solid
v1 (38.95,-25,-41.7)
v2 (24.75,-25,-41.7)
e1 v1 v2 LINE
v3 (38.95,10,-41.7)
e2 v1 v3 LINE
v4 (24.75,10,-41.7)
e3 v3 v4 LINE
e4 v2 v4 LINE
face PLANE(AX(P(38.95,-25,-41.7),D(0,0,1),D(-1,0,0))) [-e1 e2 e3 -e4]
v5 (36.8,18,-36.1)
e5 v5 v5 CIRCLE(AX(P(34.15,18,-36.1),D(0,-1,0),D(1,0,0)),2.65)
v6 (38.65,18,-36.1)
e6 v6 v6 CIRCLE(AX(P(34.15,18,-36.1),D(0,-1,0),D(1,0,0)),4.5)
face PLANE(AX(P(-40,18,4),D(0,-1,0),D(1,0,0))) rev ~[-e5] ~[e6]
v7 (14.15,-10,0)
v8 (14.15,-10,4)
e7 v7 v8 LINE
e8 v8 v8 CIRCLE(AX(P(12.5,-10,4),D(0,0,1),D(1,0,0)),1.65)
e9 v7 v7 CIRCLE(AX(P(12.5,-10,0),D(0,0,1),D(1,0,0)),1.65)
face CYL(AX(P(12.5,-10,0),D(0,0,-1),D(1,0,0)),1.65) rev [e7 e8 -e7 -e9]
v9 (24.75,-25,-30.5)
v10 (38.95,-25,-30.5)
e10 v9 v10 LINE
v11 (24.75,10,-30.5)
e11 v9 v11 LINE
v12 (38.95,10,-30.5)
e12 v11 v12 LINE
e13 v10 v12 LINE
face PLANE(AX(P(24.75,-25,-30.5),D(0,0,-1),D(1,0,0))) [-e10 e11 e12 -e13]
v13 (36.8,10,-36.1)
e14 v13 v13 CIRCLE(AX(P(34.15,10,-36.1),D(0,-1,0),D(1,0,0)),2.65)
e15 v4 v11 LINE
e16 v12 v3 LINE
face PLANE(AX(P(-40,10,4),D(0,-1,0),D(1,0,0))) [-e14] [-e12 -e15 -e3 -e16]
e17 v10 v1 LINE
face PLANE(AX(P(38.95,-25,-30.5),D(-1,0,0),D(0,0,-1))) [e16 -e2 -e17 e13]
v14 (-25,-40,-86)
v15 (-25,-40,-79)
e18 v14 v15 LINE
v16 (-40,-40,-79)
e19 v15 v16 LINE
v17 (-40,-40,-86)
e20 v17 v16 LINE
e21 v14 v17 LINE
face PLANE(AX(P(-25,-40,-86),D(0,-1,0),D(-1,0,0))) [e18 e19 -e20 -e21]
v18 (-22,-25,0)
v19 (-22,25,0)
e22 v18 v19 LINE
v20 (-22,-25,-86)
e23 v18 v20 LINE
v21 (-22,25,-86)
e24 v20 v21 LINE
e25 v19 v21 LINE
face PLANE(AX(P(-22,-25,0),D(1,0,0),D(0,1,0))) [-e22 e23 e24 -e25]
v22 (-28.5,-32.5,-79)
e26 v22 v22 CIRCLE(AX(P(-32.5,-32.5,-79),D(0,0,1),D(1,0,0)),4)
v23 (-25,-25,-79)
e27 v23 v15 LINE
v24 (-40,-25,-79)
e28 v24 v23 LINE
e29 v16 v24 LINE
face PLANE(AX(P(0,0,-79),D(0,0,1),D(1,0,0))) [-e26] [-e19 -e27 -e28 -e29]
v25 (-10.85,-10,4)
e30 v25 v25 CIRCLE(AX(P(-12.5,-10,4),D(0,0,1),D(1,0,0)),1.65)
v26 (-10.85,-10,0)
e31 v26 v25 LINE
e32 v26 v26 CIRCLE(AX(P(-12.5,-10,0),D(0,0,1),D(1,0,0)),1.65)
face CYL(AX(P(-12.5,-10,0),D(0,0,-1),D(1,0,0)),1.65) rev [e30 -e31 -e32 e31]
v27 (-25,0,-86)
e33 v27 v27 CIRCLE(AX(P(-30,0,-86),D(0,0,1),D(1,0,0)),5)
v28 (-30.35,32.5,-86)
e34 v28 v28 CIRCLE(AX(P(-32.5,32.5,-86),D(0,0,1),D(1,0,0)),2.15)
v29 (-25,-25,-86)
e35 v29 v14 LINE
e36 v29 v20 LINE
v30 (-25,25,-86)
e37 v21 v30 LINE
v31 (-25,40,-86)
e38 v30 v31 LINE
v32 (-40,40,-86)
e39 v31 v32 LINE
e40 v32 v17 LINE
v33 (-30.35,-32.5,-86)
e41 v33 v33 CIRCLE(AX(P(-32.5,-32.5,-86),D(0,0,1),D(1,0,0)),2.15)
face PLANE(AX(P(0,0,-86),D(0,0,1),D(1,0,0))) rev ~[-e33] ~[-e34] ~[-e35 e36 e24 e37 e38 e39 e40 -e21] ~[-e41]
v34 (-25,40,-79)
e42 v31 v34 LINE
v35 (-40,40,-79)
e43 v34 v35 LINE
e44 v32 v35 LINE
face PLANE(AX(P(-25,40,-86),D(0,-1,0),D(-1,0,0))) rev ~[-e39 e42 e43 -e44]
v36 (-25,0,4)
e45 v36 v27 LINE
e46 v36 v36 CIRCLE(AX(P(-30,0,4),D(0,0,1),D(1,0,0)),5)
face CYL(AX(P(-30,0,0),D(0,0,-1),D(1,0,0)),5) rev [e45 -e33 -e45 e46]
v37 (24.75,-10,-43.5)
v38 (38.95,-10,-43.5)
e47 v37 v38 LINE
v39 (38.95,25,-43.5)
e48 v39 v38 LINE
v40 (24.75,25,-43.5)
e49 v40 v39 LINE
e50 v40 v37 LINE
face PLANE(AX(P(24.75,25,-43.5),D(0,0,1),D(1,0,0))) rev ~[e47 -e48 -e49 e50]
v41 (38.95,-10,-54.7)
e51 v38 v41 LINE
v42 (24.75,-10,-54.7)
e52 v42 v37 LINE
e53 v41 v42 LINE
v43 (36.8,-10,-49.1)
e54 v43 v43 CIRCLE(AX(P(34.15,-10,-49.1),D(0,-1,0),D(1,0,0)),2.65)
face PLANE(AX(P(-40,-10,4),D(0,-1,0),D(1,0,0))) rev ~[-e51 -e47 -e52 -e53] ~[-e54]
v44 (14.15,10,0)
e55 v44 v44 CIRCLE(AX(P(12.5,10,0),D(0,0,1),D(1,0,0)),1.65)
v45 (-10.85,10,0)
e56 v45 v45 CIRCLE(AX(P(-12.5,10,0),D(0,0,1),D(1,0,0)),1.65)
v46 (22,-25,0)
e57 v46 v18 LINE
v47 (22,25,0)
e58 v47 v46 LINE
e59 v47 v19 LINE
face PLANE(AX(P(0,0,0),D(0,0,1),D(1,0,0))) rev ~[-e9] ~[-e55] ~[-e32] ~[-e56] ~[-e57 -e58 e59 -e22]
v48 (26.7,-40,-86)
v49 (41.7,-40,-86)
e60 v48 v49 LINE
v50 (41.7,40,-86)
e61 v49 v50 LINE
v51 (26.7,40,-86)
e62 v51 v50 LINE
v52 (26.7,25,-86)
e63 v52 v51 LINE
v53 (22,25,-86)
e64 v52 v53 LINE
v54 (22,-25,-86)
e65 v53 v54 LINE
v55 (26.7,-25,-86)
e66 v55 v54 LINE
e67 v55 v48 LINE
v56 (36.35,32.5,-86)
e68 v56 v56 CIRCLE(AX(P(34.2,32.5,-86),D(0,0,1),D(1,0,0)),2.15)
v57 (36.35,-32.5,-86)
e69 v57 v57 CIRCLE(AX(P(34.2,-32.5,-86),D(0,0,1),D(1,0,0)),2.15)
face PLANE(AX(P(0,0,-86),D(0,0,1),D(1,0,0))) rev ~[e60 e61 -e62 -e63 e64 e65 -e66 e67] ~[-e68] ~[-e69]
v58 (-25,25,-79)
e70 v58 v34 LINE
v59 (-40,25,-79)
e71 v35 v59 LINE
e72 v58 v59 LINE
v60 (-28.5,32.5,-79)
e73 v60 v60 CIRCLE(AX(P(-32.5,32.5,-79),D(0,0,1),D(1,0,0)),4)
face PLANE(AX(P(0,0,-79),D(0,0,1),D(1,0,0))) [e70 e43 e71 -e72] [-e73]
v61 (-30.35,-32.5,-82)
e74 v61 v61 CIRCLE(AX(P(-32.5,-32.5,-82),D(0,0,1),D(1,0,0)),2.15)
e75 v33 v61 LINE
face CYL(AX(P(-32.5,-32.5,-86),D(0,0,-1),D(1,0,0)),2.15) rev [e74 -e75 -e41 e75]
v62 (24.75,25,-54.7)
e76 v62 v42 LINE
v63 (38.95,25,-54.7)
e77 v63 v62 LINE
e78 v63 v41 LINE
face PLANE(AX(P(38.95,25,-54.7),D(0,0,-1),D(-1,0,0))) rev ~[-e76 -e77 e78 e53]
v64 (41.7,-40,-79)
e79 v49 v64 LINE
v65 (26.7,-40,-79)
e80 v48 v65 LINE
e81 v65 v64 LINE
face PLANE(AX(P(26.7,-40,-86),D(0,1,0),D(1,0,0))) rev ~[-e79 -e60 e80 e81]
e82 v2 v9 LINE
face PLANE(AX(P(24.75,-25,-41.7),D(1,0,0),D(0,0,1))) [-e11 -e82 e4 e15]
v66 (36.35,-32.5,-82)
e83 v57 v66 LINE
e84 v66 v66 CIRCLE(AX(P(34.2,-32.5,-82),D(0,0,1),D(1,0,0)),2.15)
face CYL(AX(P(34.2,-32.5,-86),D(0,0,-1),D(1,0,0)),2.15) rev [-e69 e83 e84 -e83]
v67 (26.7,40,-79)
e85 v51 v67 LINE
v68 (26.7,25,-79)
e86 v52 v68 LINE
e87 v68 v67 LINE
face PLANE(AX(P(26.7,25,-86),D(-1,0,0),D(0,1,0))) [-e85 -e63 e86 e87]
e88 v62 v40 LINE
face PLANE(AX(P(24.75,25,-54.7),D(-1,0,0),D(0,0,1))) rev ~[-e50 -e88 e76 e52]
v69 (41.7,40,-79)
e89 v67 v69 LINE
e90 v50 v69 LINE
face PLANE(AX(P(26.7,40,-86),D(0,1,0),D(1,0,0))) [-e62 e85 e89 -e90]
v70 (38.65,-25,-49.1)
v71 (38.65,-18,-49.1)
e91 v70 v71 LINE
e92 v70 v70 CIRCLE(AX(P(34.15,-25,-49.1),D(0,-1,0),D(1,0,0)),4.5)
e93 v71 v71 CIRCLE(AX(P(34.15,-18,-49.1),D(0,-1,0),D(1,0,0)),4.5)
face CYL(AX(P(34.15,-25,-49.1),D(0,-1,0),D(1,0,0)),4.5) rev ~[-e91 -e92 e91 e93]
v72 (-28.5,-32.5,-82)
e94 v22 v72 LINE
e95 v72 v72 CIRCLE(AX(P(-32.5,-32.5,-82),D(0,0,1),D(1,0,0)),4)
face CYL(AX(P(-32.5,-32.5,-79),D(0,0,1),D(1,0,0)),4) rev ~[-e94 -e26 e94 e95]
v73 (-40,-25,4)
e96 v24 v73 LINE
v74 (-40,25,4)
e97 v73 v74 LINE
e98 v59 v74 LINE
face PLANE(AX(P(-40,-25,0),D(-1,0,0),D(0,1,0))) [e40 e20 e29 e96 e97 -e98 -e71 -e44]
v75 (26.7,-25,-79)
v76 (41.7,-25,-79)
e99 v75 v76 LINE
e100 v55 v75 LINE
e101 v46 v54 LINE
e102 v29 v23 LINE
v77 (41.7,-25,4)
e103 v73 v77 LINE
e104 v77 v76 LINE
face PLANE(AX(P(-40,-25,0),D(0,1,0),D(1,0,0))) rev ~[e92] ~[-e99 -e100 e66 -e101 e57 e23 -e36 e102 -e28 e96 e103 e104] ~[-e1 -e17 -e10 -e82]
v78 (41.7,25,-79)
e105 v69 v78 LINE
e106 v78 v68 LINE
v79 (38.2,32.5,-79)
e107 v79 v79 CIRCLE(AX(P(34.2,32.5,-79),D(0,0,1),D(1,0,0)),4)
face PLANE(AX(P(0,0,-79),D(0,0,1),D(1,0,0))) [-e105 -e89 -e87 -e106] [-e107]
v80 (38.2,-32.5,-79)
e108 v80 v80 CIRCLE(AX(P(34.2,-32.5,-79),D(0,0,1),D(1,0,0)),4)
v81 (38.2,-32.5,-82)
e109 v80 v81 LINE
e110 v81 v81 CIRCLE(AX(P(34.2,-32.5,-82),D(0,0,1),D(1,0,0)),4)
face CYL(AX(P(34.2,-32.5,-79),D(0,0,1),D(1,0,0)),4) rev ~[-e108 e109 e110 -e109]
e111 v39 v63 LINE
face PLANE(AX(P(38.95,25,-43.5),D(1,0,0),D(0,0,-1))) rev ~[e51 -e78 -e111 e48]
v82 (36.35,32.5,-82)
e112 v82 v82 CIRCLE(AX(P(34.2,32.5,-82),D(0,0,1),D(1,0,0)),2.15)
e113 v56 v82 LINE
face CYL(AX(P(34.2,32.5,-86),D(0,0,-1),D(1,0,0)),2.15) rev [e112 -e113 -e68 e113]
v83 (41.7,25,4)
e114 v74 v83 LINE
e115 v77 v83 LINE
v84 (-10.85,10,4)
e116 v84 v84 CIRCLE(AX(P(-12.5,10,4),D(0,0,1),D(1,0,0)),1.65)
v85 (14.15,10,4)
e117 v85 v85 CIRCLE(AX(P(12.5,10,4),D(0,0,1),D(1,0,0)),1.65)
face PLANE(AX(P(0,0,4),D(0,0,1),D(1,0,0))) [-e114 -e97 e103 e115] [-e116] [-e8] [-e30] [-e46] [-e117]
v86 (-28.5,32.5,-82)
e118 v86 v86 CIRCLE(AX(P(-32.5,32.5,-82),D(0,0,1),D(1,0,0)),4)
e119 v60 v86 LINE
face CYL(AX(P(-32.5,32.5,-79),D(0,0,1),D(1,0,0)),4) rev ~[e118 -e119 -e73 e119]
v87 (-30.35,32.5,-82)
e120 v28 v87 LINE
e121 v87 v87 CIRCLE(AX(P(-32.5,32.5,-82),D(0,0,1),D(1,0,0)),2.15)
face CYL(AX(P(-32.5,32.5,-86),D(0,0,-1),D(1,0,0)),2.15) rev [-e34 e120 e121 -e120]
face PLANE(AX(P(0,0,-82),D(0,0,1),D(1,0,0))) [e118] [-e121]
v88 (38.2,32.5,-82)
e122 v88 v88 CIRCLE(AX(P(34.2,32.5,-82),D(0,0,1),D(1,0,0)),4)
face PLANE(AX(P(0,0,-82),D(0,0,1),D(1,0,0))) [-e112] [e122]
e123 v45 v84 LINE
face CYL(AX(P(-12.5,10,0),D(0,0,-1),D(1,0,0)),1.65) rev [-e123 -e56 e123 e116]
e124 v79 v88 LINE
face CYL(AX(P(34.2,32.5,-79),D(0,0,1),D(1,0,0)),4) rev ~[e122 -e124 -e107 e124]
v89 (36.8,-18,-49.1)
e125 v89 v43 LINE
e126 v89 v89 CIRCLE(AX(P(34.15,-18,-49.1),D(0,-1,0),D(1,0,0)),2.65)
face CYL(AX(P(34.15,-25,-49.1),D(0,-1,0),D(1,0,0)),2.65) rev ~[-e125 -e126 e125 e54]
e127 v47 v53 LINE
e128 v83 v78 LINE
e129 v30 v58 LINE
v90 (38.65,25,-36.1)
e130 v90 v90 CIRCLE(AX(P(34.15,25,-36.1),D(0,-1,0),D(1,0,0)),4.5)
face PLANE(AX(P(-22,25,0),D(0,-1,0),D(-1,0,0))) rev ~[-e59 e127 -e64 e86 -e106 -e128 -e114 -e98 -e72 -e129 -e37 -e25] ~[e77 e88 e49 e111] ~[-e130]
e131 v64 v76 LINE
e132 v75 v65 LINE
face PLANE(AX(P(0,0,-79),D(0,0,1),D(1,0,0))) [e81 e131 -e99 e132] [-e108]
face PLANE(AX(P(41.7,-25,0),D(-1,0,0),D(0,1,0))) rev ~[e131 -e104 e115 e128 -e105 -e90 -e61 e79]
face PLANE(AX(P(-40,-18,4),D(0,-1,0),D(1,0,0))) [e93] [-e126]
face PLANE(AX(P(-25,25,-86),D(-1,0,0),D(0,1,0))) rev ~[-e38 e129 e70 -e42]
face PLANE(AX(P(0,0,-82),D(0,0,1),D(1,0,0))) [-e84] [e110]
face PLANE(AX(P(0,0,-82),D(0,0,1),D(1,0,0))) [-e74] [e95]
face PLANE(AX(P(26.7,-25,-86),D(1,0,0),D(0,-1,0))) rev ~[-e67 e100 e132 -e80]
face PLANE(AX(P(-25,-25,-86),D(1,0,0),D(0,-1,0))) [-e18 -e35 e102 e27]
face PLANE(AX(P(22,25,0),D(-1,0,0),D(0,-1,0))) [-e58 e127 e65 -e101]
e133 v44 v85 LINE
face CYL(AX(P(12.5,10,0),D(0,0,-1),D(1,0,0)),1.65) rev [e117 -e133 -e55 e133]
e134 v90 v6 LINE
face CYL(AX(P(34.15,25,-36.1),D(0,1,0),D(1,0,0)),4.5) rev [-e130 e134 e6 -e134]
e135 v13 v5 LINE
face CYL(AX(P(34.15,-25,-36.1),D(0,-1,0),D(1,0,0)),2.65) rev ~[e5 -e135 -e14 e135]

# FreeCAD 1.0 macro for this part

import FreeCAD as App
import Part
import Sketcher

V = App.Vector
Q = App.Units.Quantity

doc = App.newDocument("Part")
body = doc.addObject("PartDesign::Body", "Body")

sketch1 = body.newObject("Sketcher::SketchObject", "Sketch")
sketch1.AttachmentSupport = (doc.getObject("XY_Plane"), [""])
sketch1.MapMode = "FlatFace"
sketch1.addGeometry(Part.LineSegment(V(-40, 25, 0), V(-40, -25, 0)), False)
sketch1.addGeometry(Part.LineSegment(V(-40, -25, 0), V(41.7, -25, 0)), False)
sketch1.addGeometry(Part.LineSegment(V(41.7, -25, 0), V(41.7, 25, 0)), False)
sketch1.addGeometry(Part.LineSegment(V(41.7, 25, 0), V(-40, 25, 0)), False)
sketch1.addGeometry(Part.Circle(V(-30, 0, 0), V(0, 0, 1), 5), False)
sketch1.addGeometry(Part.Circle(V(12.5, 10, 0), V(0, 0, 1), 1.6), False)
sketch1.addGeometry(Part.Circle(V(-12.5, -10, 0), V(0, 0, 1), 1.6), False)
sketch1.addGeometry(Part.Circle(V(12.5, -10, 0), V(0, 0, 1), 1.6), False)
sketch1.addGeometry(Part.Circle(V(-12.5, 10, 0), V(0, 0, 1), 1.6), False)
sketch1.addConstraint(Sketcher.Constraint("Coincident", 0, 2, 1, 1))
sketch1.addConstraint(Sketcher.Constraint("Coincident", 1, 2, 2, 1))
sketch1.addConstraint(Sketcher.Constraint("Coincident", 2, 2, 3, 1))
sketch1.addConstraint(Sketcher.Constraint("Coincident", 3, 2, 0, 1))
sketch1.addConstraint(Sketcher.Constraint("Vertical", 0))
sketch1.addConstraint(Sketcher.Constraint("Horizontal", 1))
sketch1.addConstraint(Sketcher.Constraint("Vertical", 2))
sketch1.addConstraint(Sketcher.Constraint("Horizontal", 3))
sketch1.addConstraint(Sketcher.Constraint("Equal", 5, 6))
sketch1.addConstraint(Sketcher.Constraint("Equal", 6, 7))
sketch1.addConstraint(Sketcher.Constraint("Equal", 7, 8))
sketch1.addConstraint(Sketcher.Constraint("Symmetric", 5, 3, 6, 3, -1, 1))
sketch1.addConstraint(Sketcher.Constraint("Symmetric", 7, 3, 8, 3, -1, 1))
sketch1.addConstraint(Sketcher.Constraint("Symmetric", 6, 3, 7, 3, -2))
sketch1.addConstraint(Sketcher.Constraint("PointOnObject", 4, 3, -1))
sketch1.addConstraint(Sketcher.Constraint("Diameter", 4, Q("10 mm")))
sketch1.addConstraint(Sketcher.Constraint("Diameter", 5, Q("3.3 mm")))
sketch1.addConstraint(Sketcher.Constraint("DistanceY", 0, 2, 0, 1, Q("50 mm")))
sketch1.addConstraint(Sketcher.Constraint("DistanceX", 4, 3, -1, 1, Q("30 mm")))
sketch1.addConstraint(Sketcher.Constraint("DistanceY", -1, 1, 5, 3, Q("10 mm")))
sketch1.addConstraint(Sketcher.Constraint("DistanceX", 0, 2, 4, 3, Q("10 mm")))
sketch1.addConstraint(Sketcher.Constraint("DistanceX", -1, 1, 5, 3, Q("12.5 mm")))
sketch1.addConstraint(Sketcher.Constraint("DistanceX", 1, 1, 1, 2, Q("81.7 mm")))
sketch1.addConstraint(Sketcher.Constraint("DistanceY", 0, 2, -1, 1, Q("25 mm")))
pad1 = body.newObject("PartDesign::Pad", "Pad")
pad1.Profile = sketch1
pad1.Length = 4

sketch2 = body.newObject("Sketcher::SketchObject", "Sketch001")
sketch2.AttachmentSupport = (doc.getObject("XY_Plane"), [""])
sketch2.MapMode = "FlatFace"
sketch2.addGeometry(Part.LineSegment(V(-22, 25, 0), V(-40, 25, 0)), False)
sketch2.addGeometry(Part.LineSegment(V(-40, 25, 0), V(-40, -25, 0)), False)
sketch2.addGeometry(Part.LineSegment(V(-40, -25, 0), V(-22, -25, 0)), False)
sketch2.addGeometry(Part.LineSegment(V(-22, -25, 0), V(-22, 25, 0)), False)
sketch2.addGeometry(Part.Circle(V(-30, 0, 0), V(0, 0, 1), 5), False)
sketch2.addGeometry(Part.LineSegment(V(42, 25, 0), V(22, 25, 0)), False)
sketch2.addGeometry(Part.LineSegment(V(22, 25, 0), V(22, -25, 0)), False)
sketch2.addGeometry(Part.LineSegment(V(22, -25, 0), V(42, -25, 0)), False)
sketch2.addGeometry(Part.LineSegment(V(42, -25, 0), V(42, 25, 0)), False)
sketch2.addConstraint(Sketcher.Constraint("Coincident", 0, 2, 1, 1))
sketch2.addConstraint(Sketcher.Constraint("Coincident", 1, 2, 2, 1))
sketch2.addConstraint(Sketcher.Constraint("Coincident", 2, 2, 3, 1))
sketch2.addConstraint(Sketcher.Constraint("Coincident", 3, 2, 0, 1))
sketch2.addConstraint(Sketcher.Constraint("Coincident", 5, 2, 6, 1))
sketch2.addConstraint(Sketcher.Constraint("Coincident", 6, 2, 7, 1))
sketch2.addConstraint(Sketcher.Constraint("Coincident", 7, 2, 8, 1))
sketch2.addConstraint(Sketcher.Constraint("Coincident", 8, 2, 5, 1))
sketch2.addConstraint(Sketcher.Constraint("Horizontal", 0))
sketch2.addConstraint(Sketcher.Constraint("Vertical", 1))
sketch2.addConstraint(Sketcher.Constraint("Horizontal", 2))
sketch2.addConstraint(Sketcher.Constraint("Vertical", 3))
sketch2.addConstraint(Sketcher.Constraint("Horizontal", 5))
sketch2.addConstraint(Sketcher.Constraint("Vertical", 6))
sketch2.addConstraint(Sketcher.Constraint("Horizontal", 7))
sketch2.addConstraint(Sketcher.Constraint("Vertical", 8))
sketch2.addConstraint(Sketcher.Constraint("Symmetric", 2, 2, 5, 2, -1, 1))
sketch2.addConstraint(Sketcher.Constraint("PointOnObject", 4, 3, -1))
sketch2.addConstraint(Sketcher.Constraint("Horizontal", 3, 2, 5, 2))
sketch2.addConstraint(Sketcher.Constraint("Horizontal", 2, 2, 6, 2))
sketch2.addConstraint(Sketcher.Constraint("Diameter", 4, Q("10 mm")))
sketch2.addConstraint(Sketcher.Constraint("DistanceY", 1, 2, 1, 1, Q("50 mm")))
sketch2.addConstraint(Sketcher.Constraint("DistanceX", 4, 3, -1, 1, Q("30 mm")))
sketch2.addConstraint(Sketcher.Constraint("DistanceX", 0, 2, 4, 3, Q("10 mm")))
sketch2.addConstraint(Sketcher.Constraint("DistanceX", 0, 2, 0, 1, Q("18 mm")))
sketch2.addConstraint(Sketcher.Constraint("DistanceX", 5, 2, 5, 1, Q("19.7 mm")))
pad2 = body.newObject("PartDesign::Pad", "Pad001")
pad2.Profile = sketch2
pad2.Length = 86
pad2.Reversed = True

sketch3 = body.newObject("Sketcher::SketchObject", "Sketch002")
sketch3.AttachmentSupport = (doc.getObject("XZ_Plane"), [""])
sketch3.MapMode = "FlatFace"
sketch3.AttachmentOffset = App.Placement(V(0, 0, 25), App.Rotation())
sketch3.addGeometry(Part.Circle(V(34.1, -49.1, 0), V(0, 0, 1), 2.6), False)
sketch3.addGeometry(Part.Circle(V(34.1, -36.1, 0), V(0, 0, 1), 2.6), False)
sketch3.addConstraint(Sketcher.Constraint("Equal", 0, 1))
sketch3.addConstraint(Sketcher.Constraint("Vertical", 0, 3, 1, 3))
sketch3.addConstraint(Sketcher.Constraint("Diameter", 0, Q("5.3 mm")))
sketch3.addConstraint(Sketcher.Constraint("DistanceY", 0, 3, 1, 3, Q("13 mm")))
sketch3.addConstraint(Sketcher.Constraint("DistanceY", 0, 3, -1, 1, Q("49.1 mm")))
sketch3.addConstraint(Sketcher.Constraint("DistanceX", -1, 1, 0, 3, Q("34.15 mm")))
pocket1 = body.newObject("PartDesign::Pocket", "Pocket")
pocket1.Profile = sketch3
pocket1.Length = 50

sketch4 = body.newObject("Sketcher::SketchObject", "Sketch003")
sketch4.AttachmentSupport = (doc.getObject("XZ_Plane"), [""])
sketch4.MapMode = "FlatFace"
sketch4.AttachmentOffset = App.Placement(V(0, 0, -25), App.Rotation())
sketch4.addGeometry(Part.LineSegment(V(39, -43.5, 0), V(24.8, -43.5, 0)), False)
sketch4.addGeometry(Part.LineSegment(V(24.8, -43.5, 0), V(24.8, -54.7, 0)), False)
sketch4.addGeometry(Part.LineSegment(V(24.8, -54.7, 0), V(39, -54.7, 0)), False)
sketch4.addGeometry(Part.LineSegment(V(39, -54.7, 0), V(39, -43.5, 0)), False)
sketch4.addGeometry(Part.Circle(V(34.1, -49.1, 0), V(0, 0, 1), 2.6), False)
sketch4.addConstraint(Sketcher.Constraint("Coincident", 0, 2, 1, 1))
sketch4.addConstraint(Sketcher.Constraint("Coincident", 1, 2, 2, 1))
sketch4.addConstraint(Sketcher.Constraint("Coincident", 2, 2, 3, 1))
sketch4.addConstraint(Sketcher.Constraint("Coincident", 3, 2, 0, 1))
sketch4.addConstraint(Sketcher.Constraint("Horizontal", 0))
sketch4.addConstraint(Sketcher.Constraint("Vertical", 1))
sketch4.addConstraint(Sketcher.Constraint("Horizontal", 2))
sketch4.addConstraint(Sketcher.Constraint("Vertical", 3))
sketch4.addConstraint(Sketcher.Constraint("Diameter", 4, Q("5.3 mm")))
sketch4.addConstraint(Sketcher.Constraint("DistanceX", 0, 2, 0, 1, Q("14.2 mm")))
sketch4.addConstraint(Sketcher.Constraint("DistanceY", 1, 2, 1, 1, Q("11.2 mm")))
sketch4.addConstraint(Sketcher.Constraint("DistanceX", 4, 3, 2, 2, Q("4.8 mm")))
sketch4.addConstraint(Sketcher.Constraint("DistanceY", 4, 3, -1, 1, Q("49.1 mm")))
sketch4.addConstraint(Sketcher.Constraint("DistanceY", 0, 2, -1, 1, Q("43.5 mm")))
sketch4.addConstraint(Sketcher.Constraint("DistanceX", -1, 1, 4, 3, Q("34.15 mm")))
pocket2 = body.newObject("PartDesign::Pocket", "Pocket001")
pocket2.Profile = sketch4
pocket2.Length = 35
pocket2.Reversed = True

sketch5 = body.newObject("Sketcher::SketchObject", "Sketch004")
sketch5.AttachmentSupport = (doc.getObject("XZ_Plane"), [""])
sketch5.MapMode = "FlatFace"
sketch5.AttachmentOffset = App.Placement(V(0, 0, 25), App.Rotation())
sketch5.addGeometry(Part.LineSegment(V(39, -30.5, 0), V(24.8, -30.5, 0)), False)
sketch5.addGeometry(Part.LineSegment(V(24.8, -30.5, 0), V(24.8, -41.7, 0)), False)
sketch5.addGeometry(Part.LineSegment(V(24.8, -41.7, 0), V(39, -41.7, 0)), False)
sketch5.addGeometry(Part.LineSegment(V(39, -41.7, 0), V(39, -30.5, 0)), False)
sketch5.addGeometry(Part.Circle(V(34.1, -36.1, 0), V(0, 0, 1), 2.6), False)
sketch5.addConstraint(Sketcher.Constraint("Coincident", 0, 2, 1, 1))
sketch5.addConstraint(Sketcher.Constraint("Coincident", 1, 2, 2, 1))
sketch5.addConstraint(Sketcher.Constraint("Coincident", 2, 2, 3, 1))
sketch5.addConstraint(Sketcher.Constraint("Coincident", 3, 2, 0, 1))
sketch5.addConstraint(Sketcher.Constraint("Horizontal", 0))
sketch5.addConstraint(Sketcher.Constraint("Vertical", 1))
sketch5.addConstraint(Sketcher.Constraint("Horizontal", 2))
sketch5.addConstraint(Sketcher.Constraint("Vertical", 3))
sketch5.addConstraint(Sketcher.Constraint("Diameter", 4, Q("5.3 mm")))
sketch5.addConstraint(Sketcher.Constraint("DistanceX", 0, 2, 0, 1, Q("14.2 mm")))
sketch5.addConstraint(Sketcher.Constraint("DistanceY", 1, 2, 1, 1, Q("11.2 mm")))
sketch5.addConstraint(Sketcher.Constraint("DistanceX", 4, 3, 2, 2, Q("4.8 mm")))
sketch5.addConstraint(Sketcher.Constraint("DistanceY", 4, 3, -1, 1, Q("36.1 mm")))
sketch5.addConstraint(Sketcher.Constraint("DistanceY", 0, 2, -1, 1, Q("30.5 mm")))
sketch5.addConstraint(Sketcher.Constraint("DistanceX", -1, 1, 4, 3, Q("34.15 mm")))
pocket3 = body.newObject("PartDesign::Pocket", "Pocket002")
pocket3.Profile = sketch5
pocket3.Length = 35

sketch6 = body.newObject("Sketcher::SketchObject", "Sketch005")
sketch6.AttachmentSupport = (doc.getObject("XZ_Plane"), [""])
sketch6.MapMode = "FlatFace"
sketch6.AttachmentOffset = App.Placement(V(0, 0, 25), App.Rotation())
sketch6.addGeometry(Part.Circle(V(34.1, -49.1, 0), V(0, 0, 1), 4.5), False)
sketch6.addGeometry(Part.Circle(V(34.1, -49.1, 0), V(0, 0, 1), 2.6), False)
sketch6.addConstraint(Sketcher.Constraint("Coincident", 1, 3, 0, 3))
sketch6.addConstraint(Sketcher.Constraint("Diameter", 0, Q("9 mm")))
sketch6.addConstraint(Sketcher.Constraint("Diameter", 1, Q("5.3 mm")))
sketch6.addConstraint(Sketcher.Constraint("DistanceY", 0, 3, -1, 1, Q("49.1 mm")))
sketch6.addConstraint(Sketcher.Constraint("DistanceX", -1, 1, 0, 3, Q("34.15 mm")))
pocket4 = body.newObject("PartDesign::Pocket", "Pocket003")
pocket4.Profile = sketch6
pocket4.Length = 7

sketch7 = body.newObject("Sketcher::SketchObject", "Sketch006")
sketch7.AttachmentSupport = (doc.getObject("XZ_Plane"), [""])
sketch7.MapMode = "FlatFace"
sketch7.AttachmentOffset = App.Placement(V(0, 0, -25), App.Rotation())
sketch7.addGeometry(Part.Circle(V(34.1, -36.1, 0), V(0, 0, 1), 4.5), False)
sketch7.addGeometry(Part.Circle(V(34.1, -36.1, 0), V(0, 0, 1), 2.6), False)
sketch7.addConstraint(Sketcher.Constraint("Coincident", 1, 3, 0, 3))
sketch7.addConstraint(Sketcher.Constraint("Diameter", 0, Q("9 mm")))
sketch7.addConstraint(Sketcher.Constraint("Diameter", 1, Q("5.3 mm")))
sketch7.addConstraint(Sketcher.Constraint("DistanceY", 0, 3, -1, 1, Q("36.1 mm")))
sketch7.addConstraint(Sketcher.Constraint("DistanceX", -1, 1, 0, 3, Q("34.15 mm")))
pocket5 = body.newObject("PartDesign::Pocket", "Pocket004")
pocket5.Profile = sketch7
pocket5.Length = 7
pocket5.Reversed = True

sketch8 = body.newObject("Sketcher::SketchObject", "Sketch007")
sketch8.AttachmentSupport = (doc.getObject("XY_Plane"), [""])
sketch8.MapMode = "FlatFace"
sketch8.AttachmentOffset = App.Placement(V(0, 0, -86), App.Rotation())
sketch8.addGeometry(Part.LineSegment(V(26.7, 25, 0), V(41.7, 25, 0)), False)
sketch8.addGeometry(Part.LineSegment(V(41.7, 25, 0), V(41.7, 40, 0)), False)
sketch8.addGeometry(Part.LineSegment(V(41.7, 40, 0), V(26.7, 40, 0)), False)
sketch8.addGeometry(Part.LineSegment(V(26.7, 40, 0), V(26.7, 25, 0)), False)
sketch8.addGeometry(Part.Circle(V(34.2, 32.5, 0), V(0, 0, 1), 2.1), False)
sketch8.addGeometry(Part.LineSegment(V(41.7, -40, 0), V(41.7, -25, 0)), False)
sketch8.addGeometry(Part.LineSegment(V(41.7, -25, 0), V(26.7, -25, 0)), False)
sketch8.addGeometry(Part.LineSegment(V(26.7, -25, 0), V(26.7, -40, 0)), False)
sketch8.addGeometry(Part.LineSegment(V(26.7, -40, 0), V(41.7, -40, 0)), False)
sketch8.addGeometry(Part.Circle(V(34.2, -32.5, 0), V(0, 0, 1), 2.1), False)
sketch8.addGeometry(Part.LineSegment(V(-40, 25, 0), V(-25, 25, 0)), False)
sketch8.addGeometry(Part.LineSegment(V(-25, 25, 0), V(-25, 40, 0)), False)
sketch8.addGeometry(Part.LineSegment(V(-25, 40, 0), V(-40, 40, 0)), False)
sketch8.addGeometry(Part.LineSegment(V(-40, 40, 0), V(-40, 25, 0)), False)
sketch8.addGeometry(Part.Circle(V(-32.5, 32.5, 0), V(0, 0, 1), 2.1), False)
sketch8.addGeometry(Part.LineSegment(V(-25, -40, 0), V(-25, -25, 0)), False)
sketch8.addGeometry(Part.LineSegment(V(-25, -25, 0), V(-40, -25, 0)), False)
sketch8.addGeometry(Part.LineSegment(V(-40, -25, 0), V(-40, -40, 0)), False)
sketch8.addGeometry(Part.LineSegment(V(-40, -40, 0), V(-25, -40, 0)), False)
sketch8.addGeometry(Part.Circle(V(-32.5, -32.5, 0), V(0, 0, 1), 2.1), False)
sketch8.addConstraint(Sketcher.Constraint("Coincident", 0, 2, 1, 1))
sketch8.addConstraint(Sketcher.Constraint("Coincident", 1, 2, 2, 1))
sketch8.addConstraint(Sketcher.Constraint("Coincident", 2, 2, 3, 1))
sketch8.addConstraint(Sketcher.Constraint("Coincident", 3, 2, 0, 1))
sketch8.addConstraint(Sketcher.Constraint("Coincident", 5, 2, 6, 1))
sketch8.addConstraint(Sketcher.Constraint("Coincident", 6, 2, 7, 1))
sketch8.addConstraint(Sketcher.Constraint("Coincident", 7, 2, 8, 1))
sketch8.addConstraint(Sketcher.Constraint("Coincident", 8, 2, 5, 1))
sketch8.addConstraint(Sketcher.Constraint("Coincident", 10, 2, 11, 1))
sketch8.addConstraint(Sketcher.Constraint("Coincident", 11, 2, 12, 1))
sketch8.addConstraint(Sketcher.Constraint("Coincident", 12, 2, 13, 1))
sketch8.addConstraint(Sketcher.Constraint("Coincident", 13, 2, 10, 1))
sketch8.addConstraint(Sketcher.Constraint("Coincident", 15, 2, 16, 1))
sketch8.addConstraint(Sketcher.Constraint("Coincident", 16, 2, 17, 1))
sketch8.addConstraint(Sketcher.Constraint("Coincident", 17, 2, 18, 1))
sketch8.addConstraint(Sketcher.Constraint("Coincident", 18, 2, 15, 1))
sketch8.addConstraint(Sketcher.Constraint("Horizontal", 0))
sketch8.addConstraint(Sketcher.Constraint("Vertical", 1))
sketch8.addConstraint(Sketcher.Constraint("Horizontal", 2))
sketch8.addConstraint(Sketcher.Constraint("Vertical", 3))
sketch8.addConstraint(Sketcher.Constraint("Vertical", 5))
sketch8.addConstraint(Sketcher.Constraint("Horizontal", 6))
sketch8.addConstraint(Sketcher.Constraint("Vertical", 7))
sketch8.addConstraint(Sketcher.Constraint("Horizontal", 8))
sketch8.addConstraint(Sketcher.Constraint("Horizontal", 10))
sketch8.addConstraint(Sketcher.Constraint("Vertical", 11))
sketch8.addConstraint(Sketcher.Constraint("Horizontal", 12))
sketch8.addConstraint(Sketcher.Constraint("Vertical", 13))
sketch8.addConstraint(Sketcher.Constraint("Vertical", 15))
sketch8.addConstraint(Sketcher.Constraint("Horizontal", 16))
sketch8.addConstraint(Sketcher.Constraint("Vertical", 17))
sketch8.addConstraint(Sketcher.Constraint("Horizontal", 18))
sketch8.addConstraint(Sketcher.Constraint("Equal", 4, 9))
sketch8.addConstraint(Sketcher.Constraint("Equal", 9, 14))
sketch8.addConstraint(Sketcher.Constraint("Equal", 14, 19))
sketch8.addConstraint(Sketcher.Constraint("Symmetric", 4, 3, 9, 3, -1))
sketch8.addConstraint(Sketcher.Constraint("Symmetric", 14, 3, 19, 3, -1))
sketch8.addConstraint(Sketcher.Constraint("Symmetric", 0, 2, 5, 2, -1))
sketch8.addConstraint(Sketcher.Constraint("Symmetric", 2, 2, 7, 2, -1))
sketch8.addConstraint(Sketcher.Constraint("Symmetric", 10, 2, 15, 2, -1))
sketch8.addConstraint(Sketcher.Constraint("Symmetric", 12, 2, 17, 2, -1))
sketch8.addConstraint(Sketcher.Constraint("Horizontal", 4, 3, 14, 3))
sketch8.addConstraint(Sketcher.Constraint("Horizontal", 3, 2, 10, 2))
sketch8.addConstraint(Sketcher.Constraint("Horizontal", 2, 2, 11, 2))
sketch8.addConstraint(Sketcher.Constraint("Equal", 8, 10))
sketch8.addConstraint(Sketcher.Constraint("Equal", 18, 1))
sketch8.addConstraint(Sketcher.Constraint("Diameter", 4, Q("4.3 mm")))
sketch8.addConstraint(Sketcher.Constraint("DistanceX", 0, 1, 0, 2, Q("15 mm")))
sketch8.addConstraint(Sketcher.Constraint("DistanceY", 9, 3, 4, 3, Q("65 mm")))
sketch8.addConstraint(Sketcher.Constraint("DistanceY", 5, 2, 1, 2, Q("65 mm")))
sketch8.addConstraint(Sketcher.Constraint("DistanceX", 14, 3, 4, 3, Q("66.7 mm")))
sketch8.addConstraint(Sketcher.Constraint("DistanceX", 12, 2, 2, 2, Q("66.7 mm")))
sketch8.addConstraint(Sketcher.Constraint("DistanceX", 10, 2, -1, 1, Q("25 mm")))
sketch8.addConstraint(Sketcher.Constraint("DistanceX", -1, 1, 4, 3, Q("34.2 mm")))
pad3 = body.newObject("PartDesign::Pad", "Pad002")
pad3.Profile = sketch8
pad3.Length = 7

sketch9 = body.newObject("Sketcher::SketchObject", "Sketch008")
sketch9.AttachmentSupport = (doc.getObject("XY_Plane"), [""])
sketch9.MapMode = "FlatFace"
sketch9.AttachmentOffset = App.Placement(V(0, 0, -79), App.Rotation())
sketch9.addGeometry(Part.Circle(V(34.2, 32.5, 0), V(0, 0, 1), 4), False)
sketch9.addGeometry(Part.Circle(V(34.2, 32.5, 0), V(0, 0, 1), 2.1), False)
sketch9.addGeometry(Part.Circle(V(-32.5, 32.5, 0), V(0, 0, 1), 4), False)
sketch9.addGeometry(Part.Circle(V(-32.5, 32.5, 0), V(0, 0, 1), 2.1), False)
sketch9.addGeometry(Part.Circle(V(34.2, -32.5, 0), V(0, 0, 1), 4), False)
sketch9.addGeometry(Part.Circle(V(34.2, -32.5, 0), V(0, 0, 1), 2.1), False)
sketch9.addGeometry(Part.Circle(V(-32.5, -32.5, 0), V(0, 0, 1), 4), False)
sketch9.addGeometry(Part.Circle(V(-32.5, -32.5, 0), V(0, 0, 1), 2.1), False)
sketch9.addConstraint(Sketcher.Constraint("Coincident", 1, 3, 0, 3))
sketch9.addConstraint(Sketcher.Constraint("Coincident", 3, 3, 2, 3))
sketch9.addConstraint(Sketcher.Constraint("Coincident", 5, 3, 4, 3))
sketch9.addConstraint(Sketcher.Constraint("Coincident", 7, 3, 6, 3))
sketch9.addConstraint(Sketcher.Constraint("Equal", 0, 2))
sketch9.addConstraint(Sketcher.Constraint("Equal", 1, 3))
sketch9.addConstraint(Sketcher.Constraint("Equal", 2, 4))
sketch9.addConstraint(Sketcher.Constraint("Equal", 3, 5))
sketch9.addConstraint(Sketcher.Constraint("Equal", 4, 6))
sketch9.addConstraint(Sketcher.Constraint("Equal", 5, 7))
sketch9.addConstraint(Sketcher.Constraint("Symmetric", 0, 3, 4, 3, -1))
sketch9.addConstraint(Sketcher.Constraint("Symmetric", 2, 3, 6, 3, -1))
sketch9.addConstraint(Sketcher.Constraint("Horizontal", 1, 3, 2, 3))
sketch9.addConstraint(Sketcher.Constraint("Diameter", 0, Q("8 mm")))
sketch9.addConstraint(Sketcher.Constraint("Diameter", 1, Q("4.3 mm")))
sketch9.addConstraint(Sketcher.Constraint("DistanceY", 4, 3, 0, 3, Q("65 mm")))
sketch9.addConstraint(Sketcher.Constraint("DistanceX", 2, 3, 0, 3, Q("66.7 mm")))
sketch9.addConstraint(Sketcher.Constraint("DistanceX", -1, 1, 0, 3, Q("34.2 mm")))
pocket6 = body.newObject("PartDesign::Pocket", "Pocket005")
pocket6.Profile = sketch9
pocket6.Length = 3

doc.recompute()
